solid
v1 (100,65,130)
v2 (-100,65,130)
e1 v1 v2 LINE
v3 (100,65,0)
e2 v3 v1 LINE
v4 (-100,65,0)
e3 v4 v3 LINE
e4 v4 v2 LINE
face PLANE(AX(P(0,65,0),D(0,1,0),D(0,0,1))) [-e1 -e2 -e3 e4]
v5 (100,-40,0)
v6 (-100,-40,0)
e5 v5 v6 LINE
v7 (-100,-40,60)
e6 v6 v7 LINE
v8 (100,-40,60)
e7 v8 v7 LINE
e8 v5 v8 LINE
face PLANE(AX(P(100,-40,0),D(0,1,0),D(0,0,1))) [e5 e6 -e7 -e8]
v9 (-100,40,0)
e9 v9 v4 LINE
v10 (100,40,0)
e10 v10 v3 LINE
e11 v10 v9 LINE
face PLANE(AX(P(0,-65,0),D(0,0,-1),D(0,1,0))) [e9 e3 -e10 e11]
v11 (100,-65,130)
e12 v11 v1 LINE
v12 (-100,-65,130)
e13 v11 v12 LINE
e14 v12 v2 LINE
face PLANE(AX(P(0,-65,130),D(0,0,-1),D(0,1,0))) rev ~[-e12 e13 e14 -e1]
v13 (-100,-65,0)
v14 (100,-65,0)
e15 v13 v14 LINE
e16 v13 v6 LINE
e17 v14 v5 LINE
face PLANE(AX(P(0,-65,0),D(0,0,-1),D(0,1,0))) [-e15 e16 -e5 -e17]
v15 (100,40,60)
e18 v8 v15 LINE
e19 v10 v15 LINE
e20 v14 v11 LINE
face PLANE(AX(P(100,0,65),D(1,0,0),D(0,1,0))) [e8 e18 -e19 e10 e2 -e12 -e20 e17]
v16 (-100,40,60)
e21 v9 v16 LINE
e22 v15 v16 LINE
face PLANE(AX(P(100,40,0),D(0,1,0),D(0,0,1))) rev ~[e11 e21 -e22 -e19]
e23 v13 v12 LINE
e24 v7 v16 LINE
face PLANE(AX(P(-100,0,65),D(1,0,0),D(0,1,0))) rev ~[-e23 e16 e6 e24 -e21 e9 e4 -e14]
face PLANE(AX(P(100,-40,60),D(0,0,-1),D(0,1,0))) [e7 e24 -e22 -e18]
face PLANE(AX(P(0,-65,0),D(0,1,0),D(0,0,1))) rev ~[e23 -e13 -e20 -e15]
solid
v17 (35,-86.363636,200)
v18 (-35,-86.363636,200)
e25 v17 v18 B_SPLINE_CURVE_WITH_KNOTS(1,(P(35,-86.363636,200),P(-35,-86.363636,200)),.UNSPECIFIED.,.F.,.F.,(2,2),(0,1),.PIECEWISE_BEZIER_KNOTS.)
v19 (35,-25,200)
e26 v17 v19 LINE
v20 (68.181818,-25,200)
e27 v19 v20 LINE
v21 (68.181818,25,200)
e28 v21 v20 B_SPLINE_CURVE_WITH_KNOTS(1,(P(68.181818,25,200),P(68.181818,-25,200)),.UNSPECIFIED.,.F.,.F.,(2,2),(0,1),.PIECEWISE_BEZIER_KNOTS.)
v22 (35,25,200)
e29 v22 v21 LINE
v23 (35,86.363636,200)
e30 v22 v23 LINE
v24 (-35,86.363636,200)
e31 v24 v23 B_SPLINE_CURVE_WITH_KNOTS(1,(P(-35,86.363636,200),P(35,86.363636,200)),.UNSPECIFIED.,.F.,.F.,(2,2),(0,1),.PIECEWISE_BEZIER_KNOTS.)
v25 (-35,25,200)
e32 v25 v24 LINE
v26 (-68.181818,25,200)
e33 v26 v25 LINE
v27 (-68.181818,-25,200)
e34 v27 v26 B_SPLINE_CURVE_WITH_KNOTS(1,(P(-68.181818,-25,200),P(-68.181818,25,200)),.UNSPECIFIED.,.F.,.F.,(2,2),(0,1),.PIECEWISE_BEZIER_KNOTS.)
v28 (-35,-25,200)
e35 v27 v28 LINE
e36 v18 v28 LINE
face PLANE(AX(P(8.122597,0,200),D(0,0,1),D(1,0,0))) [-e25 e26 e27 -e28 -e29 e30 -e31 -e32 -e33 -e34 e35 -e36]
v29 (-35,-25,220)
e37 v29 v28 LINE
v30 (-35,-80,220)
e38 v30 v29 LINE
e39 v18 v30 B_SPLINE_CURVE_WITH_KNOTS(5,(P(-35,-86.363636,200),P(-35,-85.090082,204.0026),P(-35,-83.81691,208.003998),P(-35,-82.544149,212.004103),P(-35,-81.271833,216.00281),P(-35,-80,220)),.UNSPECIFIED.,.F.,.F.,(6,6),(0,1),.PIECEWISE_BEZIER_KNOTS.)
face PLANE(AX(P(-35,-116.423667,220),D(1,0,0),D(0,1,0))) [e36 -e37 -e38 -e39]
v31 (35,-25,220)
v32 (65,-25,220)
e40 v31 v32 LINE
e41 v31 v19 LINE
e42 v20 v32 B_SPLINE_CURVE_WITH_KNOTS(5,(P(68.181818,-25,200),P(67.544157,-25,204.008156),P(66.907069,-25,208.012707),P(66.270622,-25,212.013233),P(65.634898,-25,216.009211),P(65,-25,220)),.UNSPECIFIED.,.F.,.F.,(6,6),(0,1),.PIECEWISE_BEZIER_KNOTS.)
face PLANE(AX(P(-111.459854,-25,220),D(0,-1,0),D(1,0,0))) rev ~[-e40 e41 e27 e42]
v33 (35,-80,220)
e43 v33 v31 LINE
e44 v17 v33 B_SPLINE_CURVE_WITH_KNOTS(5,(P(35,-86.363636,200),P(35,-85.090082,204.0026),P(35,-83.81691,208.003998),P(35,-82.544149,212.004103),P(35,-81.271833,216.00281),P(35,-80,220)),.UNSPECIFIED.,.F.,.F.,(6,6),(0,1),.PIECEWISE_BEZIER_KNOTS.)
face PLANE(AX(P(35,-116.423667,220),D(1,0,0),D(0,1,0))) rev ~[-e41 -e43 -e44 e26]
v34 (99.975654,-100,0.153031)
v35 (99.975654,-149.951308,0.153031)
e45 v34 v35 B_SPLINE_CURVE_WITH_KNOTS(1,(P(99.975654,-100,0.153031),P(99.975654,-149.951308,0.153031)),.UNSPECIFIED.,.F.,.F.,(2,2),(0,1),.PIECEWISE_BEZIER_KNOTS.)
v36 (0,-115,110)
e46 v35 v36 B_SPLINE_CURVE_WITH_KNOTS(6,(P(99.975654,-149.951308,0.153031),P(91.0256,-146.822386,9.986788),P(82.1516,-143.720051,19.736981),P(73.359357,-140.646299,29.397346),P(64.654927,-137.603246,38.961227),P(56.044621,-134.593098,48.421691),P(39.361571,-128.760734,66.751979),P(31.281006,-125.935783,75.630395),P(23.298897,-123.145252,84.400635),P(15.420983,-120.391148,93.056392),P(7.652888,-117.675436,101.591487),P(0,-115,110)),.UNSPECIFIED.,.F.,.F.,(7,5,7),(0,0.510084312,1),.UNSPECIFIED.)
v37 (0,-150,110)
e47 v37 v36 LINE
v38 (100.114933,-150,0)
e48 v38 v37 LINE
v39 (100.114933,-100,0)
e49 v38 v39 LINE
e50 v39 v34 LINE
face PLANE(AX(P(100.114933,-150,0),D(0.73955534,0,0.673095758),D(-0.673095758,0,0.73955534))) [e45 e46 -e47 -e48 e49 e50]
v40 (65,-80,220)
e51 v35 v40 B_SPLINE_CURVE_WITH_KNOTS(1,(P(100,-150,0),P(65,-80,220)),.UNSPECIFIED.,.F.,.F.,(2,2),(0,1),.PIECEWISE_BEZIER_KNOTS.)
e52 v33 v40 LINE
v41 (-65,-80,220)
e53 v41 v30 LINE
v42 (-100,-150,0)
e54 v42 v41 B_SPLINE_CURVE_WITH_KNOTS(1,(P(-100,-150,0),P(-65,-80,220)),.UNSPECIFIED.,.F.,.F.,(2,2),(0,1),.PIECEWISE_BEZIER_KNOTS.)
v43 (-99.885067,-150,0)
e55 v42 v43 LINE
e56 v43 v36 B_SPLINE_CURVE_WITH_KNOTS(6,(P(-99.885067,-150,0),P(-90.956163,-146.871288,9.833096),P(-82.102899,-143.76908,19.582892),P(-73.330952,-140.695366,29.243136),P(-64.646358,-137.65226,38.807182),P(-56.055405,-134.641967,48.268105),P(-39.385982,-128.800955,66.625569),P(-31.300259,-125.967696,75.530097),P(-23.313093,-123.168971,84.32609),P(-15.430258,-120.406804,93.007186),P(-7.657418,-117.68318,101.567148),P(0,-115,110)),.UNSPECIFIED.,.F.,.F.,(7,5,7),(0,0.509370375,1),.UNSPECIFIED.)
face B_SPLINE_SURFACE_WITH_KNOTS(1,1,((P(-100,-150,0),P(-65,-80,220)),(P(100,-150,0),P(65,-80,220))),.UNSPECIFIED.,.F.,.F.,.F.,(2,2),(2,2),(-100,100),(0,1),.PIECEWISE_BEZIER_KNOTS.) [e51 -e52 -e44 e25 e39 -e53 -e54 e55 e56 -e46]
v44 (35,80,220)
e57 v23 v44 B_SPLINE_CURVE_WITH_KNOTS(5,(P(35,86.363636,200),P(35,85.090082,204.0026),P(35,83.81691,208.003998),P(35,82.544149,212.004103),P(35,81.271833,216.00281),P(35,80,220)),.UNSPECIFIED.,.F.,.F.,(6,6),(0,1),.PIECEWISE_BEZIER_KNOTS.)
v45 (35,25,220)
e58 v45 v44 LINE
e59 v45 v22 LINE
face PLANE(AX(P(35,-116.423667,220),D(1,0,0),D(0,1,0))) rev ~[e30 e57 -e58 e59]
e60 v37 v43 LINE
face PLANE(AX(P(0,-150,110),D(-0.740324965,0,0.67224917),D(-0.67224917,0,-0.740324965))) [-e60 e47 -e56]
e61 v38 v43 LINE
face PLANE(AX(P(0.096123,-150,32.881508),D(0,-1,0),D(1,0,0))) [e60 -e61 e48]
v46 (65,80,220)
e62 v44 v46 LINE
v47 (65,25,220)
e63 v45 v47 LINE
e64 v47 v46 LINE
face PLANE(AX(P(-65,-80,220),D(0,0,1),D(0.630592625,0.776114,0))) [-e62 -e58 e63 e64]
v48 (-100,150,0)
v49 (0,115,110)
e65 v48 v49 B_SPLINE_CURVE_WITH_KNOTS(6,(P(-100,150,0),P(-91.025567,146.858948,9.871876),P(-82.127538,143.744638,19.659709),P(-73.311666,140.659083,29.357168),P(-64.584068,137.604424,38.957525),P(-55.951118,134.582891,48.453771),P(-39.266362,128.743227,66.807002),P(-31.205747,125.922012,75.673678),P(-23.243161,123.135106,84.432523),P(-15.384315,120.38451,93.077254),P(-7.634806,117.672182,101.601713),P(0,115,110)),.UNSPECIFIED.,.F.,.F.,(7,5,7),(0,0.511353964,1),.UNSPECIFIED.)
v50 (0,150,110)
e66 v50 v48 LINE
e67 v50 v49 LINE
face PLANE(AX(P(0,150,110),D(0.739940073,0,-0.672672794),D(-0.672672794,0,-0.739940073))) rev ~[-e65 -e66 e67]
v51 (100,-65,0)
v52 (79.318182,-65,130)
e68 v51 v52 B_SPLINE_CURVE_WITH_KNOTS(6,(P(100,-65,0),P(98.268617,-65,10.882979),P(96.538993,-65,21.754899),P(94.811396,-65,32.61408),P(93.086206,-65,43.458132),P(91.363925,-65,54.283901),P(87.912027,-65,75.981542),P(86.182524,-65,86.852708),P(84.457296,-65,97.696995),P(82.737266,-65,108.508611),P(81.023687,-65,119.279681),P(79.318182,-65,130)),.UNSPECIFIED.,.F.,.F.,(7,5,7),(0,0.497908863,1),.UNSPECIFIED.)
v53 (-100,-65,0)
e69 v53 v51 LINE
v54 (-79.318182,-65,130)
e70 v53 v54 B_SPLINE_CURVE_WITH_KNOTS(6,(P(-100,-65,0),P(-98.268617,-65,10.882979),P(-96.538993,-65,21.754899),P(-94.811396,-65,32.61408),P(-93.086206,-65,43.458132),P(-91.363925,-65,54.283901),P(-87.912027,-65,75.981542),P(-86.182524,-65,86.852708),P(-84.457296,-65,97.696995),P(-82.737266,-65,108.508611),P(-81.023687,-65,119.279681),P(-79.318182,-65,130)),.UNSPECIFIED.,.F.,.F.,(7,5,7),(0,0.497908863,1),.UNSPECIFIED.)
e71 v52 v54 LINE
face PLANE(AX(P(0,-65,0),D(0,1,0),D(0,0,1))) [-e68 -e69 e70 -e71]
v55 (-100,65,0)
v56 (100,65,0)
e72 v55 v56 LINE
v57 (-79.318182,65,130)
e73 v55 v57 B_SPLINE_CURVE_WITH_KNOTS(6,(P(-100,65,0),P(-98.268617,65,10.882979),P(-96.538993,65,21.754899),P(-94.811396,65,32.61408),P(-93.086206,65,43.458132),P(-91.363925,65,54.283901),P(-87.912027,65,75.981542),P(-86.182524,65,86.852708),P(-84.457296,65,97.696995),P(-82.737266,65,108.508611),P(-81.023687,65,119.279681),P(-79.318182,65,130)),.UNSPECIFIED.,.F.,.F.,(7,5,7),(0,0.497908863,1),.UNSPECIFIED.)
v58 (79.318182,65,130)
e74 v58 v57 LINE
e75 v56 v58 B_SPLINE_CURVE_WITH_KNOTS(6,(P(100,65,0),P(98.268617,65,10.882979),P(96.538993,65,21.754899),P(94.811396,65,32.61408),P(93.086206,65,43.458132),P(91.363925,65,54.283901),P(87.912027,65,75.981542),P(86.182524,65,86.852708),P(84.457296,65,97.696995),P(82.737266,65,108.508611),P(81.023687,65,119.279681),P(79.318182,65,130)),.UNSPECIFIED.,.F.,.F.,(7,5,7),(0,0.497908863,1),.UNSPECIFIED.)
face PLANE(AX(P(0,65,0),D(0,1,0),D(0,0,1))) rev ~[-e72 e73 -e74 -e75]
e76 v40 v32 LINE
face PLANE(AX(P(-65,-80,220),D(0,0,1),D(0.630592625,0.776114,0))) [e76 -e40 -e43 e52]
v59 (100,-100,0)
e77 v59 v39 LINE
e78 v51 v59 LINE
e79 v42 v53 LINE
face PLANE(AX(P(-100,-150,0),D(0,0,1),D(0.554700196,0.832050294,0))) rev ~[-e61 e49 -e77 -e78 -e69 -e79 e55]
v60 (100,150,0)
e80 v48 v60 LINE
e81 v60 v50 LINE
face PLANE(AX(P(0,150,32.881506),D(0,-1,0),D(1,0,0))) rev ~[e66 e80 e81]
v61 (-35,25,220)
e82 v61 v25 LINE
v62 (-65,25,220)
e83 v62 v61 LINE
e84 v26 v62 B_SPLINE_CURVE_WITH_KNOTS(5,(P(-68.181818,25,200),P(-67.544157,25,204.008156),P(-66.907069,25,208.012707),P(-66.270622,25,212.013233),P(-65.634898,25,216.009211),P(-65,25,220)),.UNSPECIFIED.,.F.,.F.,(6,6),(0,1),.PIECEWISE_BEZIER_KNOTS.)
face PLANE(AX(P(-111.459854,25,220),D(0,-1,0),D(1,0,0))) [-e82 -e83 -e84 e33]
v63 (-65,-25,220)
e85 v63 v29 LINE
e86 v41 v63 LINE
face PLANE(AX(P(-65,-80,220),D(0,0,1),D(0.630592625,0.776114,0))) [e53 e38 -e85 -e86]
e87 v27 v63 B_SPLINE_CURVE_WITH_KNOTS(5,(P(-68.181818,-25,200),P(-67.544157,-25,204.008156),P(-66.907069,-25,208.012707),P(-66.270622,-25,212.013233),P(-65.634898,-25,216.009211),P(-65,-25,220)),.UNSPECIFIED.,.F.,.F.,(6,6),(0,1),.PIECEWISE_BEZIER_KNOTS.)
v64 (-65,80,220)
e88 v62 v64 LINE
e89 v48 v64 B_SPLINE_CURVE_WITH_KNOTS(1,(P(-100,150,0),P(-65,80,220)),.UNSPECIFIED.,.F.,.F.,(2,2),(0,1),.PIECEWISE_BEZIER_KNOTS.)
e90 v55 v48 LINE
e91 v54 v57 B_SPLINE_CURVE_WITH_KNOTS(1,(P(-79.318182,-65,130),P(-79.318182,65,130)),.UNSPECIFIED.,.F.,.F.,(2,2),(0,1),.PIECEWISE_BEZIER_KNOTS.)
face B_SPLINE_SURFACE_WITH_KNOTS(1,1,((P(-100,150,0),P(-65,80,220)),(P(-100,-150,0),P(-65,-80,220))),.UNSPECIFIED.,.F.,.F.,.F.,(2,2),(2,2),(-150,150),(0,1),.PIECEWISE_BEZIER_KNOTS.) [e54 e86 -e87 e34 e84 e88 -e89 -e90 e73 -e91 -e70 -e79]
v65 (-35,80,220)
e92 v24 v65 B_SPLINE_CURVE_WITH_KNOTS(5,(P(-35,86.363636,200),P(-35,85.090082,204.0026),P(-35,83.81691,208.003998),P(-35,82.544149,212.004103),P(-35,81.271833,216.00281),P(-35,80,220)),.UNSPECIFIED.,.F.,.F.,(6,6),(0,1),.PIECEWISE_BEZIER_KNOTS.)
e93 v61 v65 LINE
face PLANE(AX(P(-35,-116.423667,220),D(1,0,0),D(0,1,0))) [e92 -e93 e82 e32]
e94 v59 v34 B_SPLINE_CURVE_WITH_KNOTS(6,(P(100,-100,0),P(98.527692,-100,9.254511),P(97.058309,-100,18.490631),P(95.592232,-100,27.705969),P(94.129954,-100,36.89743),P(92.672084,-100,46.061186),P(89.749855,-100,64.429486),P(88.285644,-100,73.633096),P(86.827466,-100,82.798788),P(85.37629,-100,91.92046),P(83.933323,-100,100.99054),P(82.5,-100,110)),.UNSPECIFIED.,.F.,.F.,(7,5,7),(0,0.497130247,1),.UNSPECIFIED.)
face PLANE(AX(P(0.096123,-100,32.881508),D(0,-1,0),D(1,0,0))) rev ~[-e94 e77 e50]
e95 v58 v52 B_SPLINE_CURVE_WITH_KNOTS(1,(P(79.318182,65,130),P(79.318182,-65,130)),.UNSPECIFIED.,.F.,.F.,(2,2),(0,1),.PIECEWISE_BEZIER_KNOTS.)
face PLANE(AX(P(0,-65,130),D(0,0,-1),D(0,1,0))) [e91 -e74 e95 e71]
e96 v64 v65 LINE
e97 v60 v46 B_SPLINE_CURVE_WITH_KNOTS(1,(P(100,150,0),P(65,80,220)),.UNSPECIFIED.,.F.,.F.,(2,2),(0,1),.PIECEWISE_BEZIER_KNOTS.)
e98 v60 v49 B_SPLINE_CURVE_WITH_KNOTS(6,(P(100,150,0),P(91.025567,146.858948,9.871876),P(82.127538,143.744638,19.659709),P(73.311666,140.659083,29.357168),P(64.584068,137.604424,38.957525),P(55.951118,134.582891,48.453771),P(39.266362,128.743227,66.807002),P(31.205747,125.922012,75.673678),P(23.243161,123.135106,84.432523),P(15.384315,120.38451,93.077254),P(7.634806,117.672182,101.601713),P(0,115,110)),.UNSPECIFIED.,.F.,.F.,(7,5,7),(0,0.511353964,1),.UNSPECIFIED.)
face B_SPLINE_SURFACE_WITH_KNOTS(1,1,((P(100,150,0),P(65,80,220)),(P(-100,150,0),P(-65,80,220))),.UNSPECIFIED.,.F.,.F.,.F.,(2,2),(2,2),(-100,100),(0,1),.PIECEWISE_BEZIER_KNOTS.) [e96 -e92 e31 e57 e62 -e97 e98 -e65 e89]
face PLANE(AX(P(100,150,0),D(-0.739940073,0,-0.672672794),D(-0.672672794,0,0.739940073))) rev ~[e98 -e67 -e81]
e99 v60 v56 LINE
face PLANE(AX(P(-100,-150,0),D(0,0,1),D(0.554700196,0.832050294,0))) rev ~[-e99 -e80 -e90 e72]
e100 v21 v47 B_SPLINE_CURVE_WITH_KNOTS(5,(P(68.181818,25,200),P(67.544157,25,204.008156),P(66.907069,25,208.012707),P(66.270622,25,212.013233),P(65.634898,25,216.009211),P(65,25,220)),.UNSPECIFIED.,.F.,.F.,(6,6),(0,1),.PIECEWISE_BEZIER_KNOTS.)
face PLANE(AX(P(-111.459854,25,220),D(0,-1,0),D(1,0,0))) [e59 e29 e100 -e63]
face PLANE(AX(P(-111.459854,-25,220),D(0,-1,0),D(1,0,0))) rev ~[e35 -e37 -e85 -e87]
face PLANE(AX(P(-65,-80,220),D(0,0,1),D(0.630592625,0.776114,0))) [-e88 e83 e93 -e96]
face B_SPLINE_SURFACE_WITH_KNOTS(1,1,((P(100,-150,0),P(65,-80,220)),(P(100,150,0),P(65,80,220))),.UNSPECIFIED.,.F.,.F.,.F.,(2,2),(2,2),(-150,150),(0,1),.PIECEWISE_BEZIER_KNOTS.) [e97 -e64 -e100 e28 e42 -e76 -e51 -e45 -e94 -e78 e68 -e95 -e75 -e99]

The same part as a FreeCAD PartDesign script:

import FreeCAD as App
import Part
import Sketcher

V = App.Vector
Q = App.Units.Quantity


def add_polygon(sketch, points):
    """Adds a closed chain of lines whose ends are joined by coincident constraints."""
    first, n = sketch.GeometryCount, len(points)
    for a, b in zip(points, points[1:] + points[:1]):
        sketch.addGeometry(Part.LineSegment(App.Vector(*a, 0), App.Vector(*b, 0)), False)
    for i in range(n):
        sketch.addConstraint(Sketcher.Constraint("Coincident", first + i, 2, first + (i + 1) % n, 1))

doc = App.newDocument("Part")
body = doc.addObject("PartDesign::Body", "Body")

# Sketch on YZ plane
sketch1 = doc.addObject("Sketcher::SketchObject", "Sketch")
body.addObject(sketch1)
sketch1.AttachmentSupport = (doc.YZ_Plane, [""])
sketch1.MapMode = "FlatFace"
add_polygon(sketch1, [(-65, 130), (-65, 0), (65, 0), (65, 130)])  # lines 0-3
sketch1.addConstraint(Sketcher.Constraint("Vertical", 0))
sketch1.addConstraint(Sketcher.Constraint("Horizontal", 1))
sketch1.addConstraint(Sketcher.Constraint("Vertical", 2))
sketch1.addConstraint(Sketcher.Constraint("Horizontal", 3))
sketch1.addConstraint(Sketcher.Constraint("Symmetric", 0, 2, 1, 2, -1, 1))
sketch1.addConstraint(Sketcher.Constraint("Equal", 3, 0))
sketch1.addConstraint(Sketcher.Constraint("DistanceX", 1, 1, 1, 2, Q("130 mm")))
pad1 = doc.addObject("PartDesign::Pad", "Pad")
body.addObject(pad1)
pad1.Profile = sketch1
pad1.Length = 200
pad1.Midplane = True
body2 = doc.addObject("PartDesign::Body", "Body001")

# Sketch on XZ plane
sketch2 = doc.addObject("Sketcher::SketchObject", "Sketch001")
body2.addObject(sketch2)
sketch2.AttachmentSupport = (doc.getObject("XZ_Plane001"), [""])
sketch2.MapMode = "FlatFace"
sketch2.AttachmentOffset = App.Placement(V(0, 0, -150), App.Rotation())
add_polygon(sketch2, [(-100, 0), (100, 0), (0, 110)])  # lines 0-2
sketch2.addConstraint(Sketcher.Constraint("Horizontal", 0))
sketch2.addConstraint(Sketcher.Constraint("Symmetric", 0, 2, 2, 2, -1, 1))
sketch2.addConstraint(Sketcher.Constraint("PointOnObject", 1, 2, -2))
sketch2.addConstraint(Sketcher.Constraint("DistanceX", 0, 1, 0, 2, Q("200 mm")))
sketch2.addConstraint(Sketcher.Constraint("DistanceY", -1, 1, 1, 2, Q("110 mm")))
pad2 = doc.addObject("PartDesign::Pad", "Pad001")
body2.addObject(pad2)
pad2.Profile = sketch2
pad2.Length = 50
body3 = doc.addObject("PartDesign::Body", "Body002")

# Sketch on XZ plane
sketch3 = doc.addObject("Sketcher::SketchObject", "Sketch002")
body3.addObject(sketch3)
sketch3.AttachmentSupport = (doc.getObject("XZ_Plane002"), [""])
sketch3.MapMode = "FlatFace"
sketch3.AttachmentOffset = App.Placement(V(0, 0, 150), App.Rotation())
add_polygon(sketch3, [(-99.885067, 0), (100.114933, 0), (0, 110)])  # lines 0-2
sketch3.addConstraint(Sketcher.Constraint("Horizontal", 0))
sketch3.addConstraint(Sketcher.Constraint("PointOnObject", 0, 2, -1))
sketch3.addConstraint(Sketcher.Constraint("PointOnObject", 1, 2, -2))
sketch3.addConstraint(Sketcher.Constraint("DistanceX", 0, 1, 0, 2, Q("200 mm")))
sketch3.addConstraint(Sketcher.Constraint("DistanceY", -1, 1, 1, 2, Q("110 mm")))
sketch3.addConstraint(Sketcher.Constraint("Distance", 2, Q("148.5834 mm")))
pad3 = doc.addObject("PartDesign::Pad", "Pad002")
body3.addObject(pad3)
pad3.Profile = sketch3
pad3.Length = 50
pad3.Reversed = True
body4 = doc.addObject("PartDesign::Body", "Body003")

# Sketch on XY plane
sketch4 = doc.addObject("Sketcher::SketchObject", "Sketch003")
body4.addObject(sketch4)
sketch4.AttachmentSupport = (doc.getObject("XY_Plane003"), [""])
sketch4.MapMode = "FlatFace"
add_polygon(sketch4, [(-100, 150), (-100, -150), (100, -150), (100, 150)])  # lines 0-3
sketch4.addConstraint(Sketcher.Constraint("Vertical", 0))
sketch4.addConstraint(Sketcher.Constraint("Horizontal", 1))
sketch4.addConstraint(Sketcher.Constraint("Vertical", 2))
sketch4.addConstraint(Sketcher.Constraint("Horizontal", 3))
sketch4.addConstraint(Sketcher.Constraint("Symmetric", 0, 2, 2, 2, -1, 1))
sketch4.addConstraint(Sketcher.Constraint("DistanceX", 1, 1, 1, 2, Q("200 mm")))
sketch4.addConstraint(Sketcher.Constraint("DistanceY", 0, 2, 0, 1, Q("300 mm")))

# Sketch on XY plane
sketch5 = doc.addObject("Sketcher::SketchObject", "Sketch004")
body4.addObject(sketch5)
sketch5.AttachmentSupport = (doc.getObject("XY_Plane003"), [""])
sketch5.MapMode = "FlatFace"
sketch5.AttachmentOffset = App.Placement(V(0, 0, 220), App.Rotation())
add_polygon(sketch5, [(-65, 80), (-65, -80), (65, -80), (65, 80)])  # lines 0-3
sketch5.addConstraint(Sketcher.Constraint("Vertical", 0))
sketch5.addConstraint(Sketcher.Constraint("Horizontal", 1))
sketch5.addConstraint(Sketcher.Constraint("Vertical", 2))
sketch5.addConstraint(Sketcher.Constraint("Horizontal", 3))
sketch5.addConstraint(Sketcher.Constraint("Symmetric", 0, 2, 2, 2, -1, 1))
sketch5.addConstraint(Sketcher.Constraint("DistanceX", 1, 1, 1, 2, Q("130 mm")))
sketch5.addConstraint(Sketcher.Constraint("DistanceY", 0, 2, 0, 1, Q("160 mm")))

additiveloft = doc.addObject("PartDesign::AdditiveLoft", "AdditiveLoft")
body4.addObject(additiveloft)
additiveloft.Profile = sketch4
additiveloft.Sections = [sketch5]

# Sketch on XY plane
sketch6 = doc.addObject("Sketcher::SketchObject", "Sketch005")
body4.addObject(sketch6)
sketch6.AttachmentSupport = (doc.getObject("XY_Plane003"), [""])
sketch6.MapMode = "FlatFace"
sketch6.AttachmentOffset = App.Placement(V(0, 0, 220), App.Rotation())
add_polygon(sketch6, [(-35, 127.253777), (-35, -116.423667), (35, -116.423667), (35, 127.253777)])  # lines 0-3
sketch6.addConstraint(Sketcher.Constraint("Vertical", 0))
sketch6.addConstraint(Sketcher.Constraint("Horizontal", 1))
sketch6.addConstraint(Sketcher.Constraint("Vertical", 2))
sketch6.addConstraint(Sketcher.Constraint("Horizontal", 3))
sketch6.addConstraint(Sketcher.Constraint("DistanceX", 1, 1, 1, 2, Q("70 mm")))
sketch6.addConstraint(Sketcher.Constraint("DistanceX", 0, 2, -1, 1, Q("35 mm")))
sketch6.addConstraint(Sketcher.Constraint("DistanceY", 0, 2, 0, 1, Q("243.677445 mm")))
sketch6.addConstraint(Sketcher.Constraint("DistanceY", 0, 2, -1, 1, Q("116.423667 mm")))
pocket1 = doc.addObject("PartDesign::Pocket", "Pocket")
body4.addObject(pocket1)
pocket1.Profile = sketch6
pocket1.Length = 20

# Sketch on XY plane
sketch7 = doc.addObject("Sketcher::SketchObject", "Sketch006")
body4.addObject(sketch7)
sketch7.AttachmentSupport = (doc.getObject("XY_Plane003"), [""])
sketch7.MapMode = "FlatFace"
sketch7.AttachmentOffset = App.Placement(V(0, 0, 220), App.Rotation())
add_polygon(sketch7, [(-111.459854, 25), (-111.459854, -25), (127.705048, -25), (127.705048, 25)])  # lines 0-3
sketch7.addConstraint(Sketcher.Constraint("Vertical", 0))
sketch7.addConstraint(Sketcher.Constraint("Horizontal", 1))
sketch7.addConstraint(Sketcher.Constraint("Vertical", 2))
sketch7.addConstraint(Sketcher.Constraint("Horizontal", 3))
sketch7.addConstraint(Sketcher.Constraint("DistanceY", 0, 2, 0, 1, Q("50 mm")))
sketch7.addConstraint(Sketcher.Constraint("DistanceY", 0, 2, -1, 1, Q("25 mm")))
sketch7.addConstraint(Sketcher.Constraint("DistanceX", 1, 1, 1, 2, Q("239.164902 mm")))
sketch7.addConstraint(Sketcher.Constraint("DistanceX", -1, 1, 1, 2, Q("127.705048 mm")))
pocket2 = doc.addObject("PartDesign::Pocket", "Pocket001")
body4.addObject(pocket2)
pocket2.Profile = sketch7
pocket2.Length = 20
doc.recompute()

boolean = doc.addObject("PartDesign::Boolean", "Boolean")
body4.addObject(boolean)
boolean.Type = "Fuse"
boolean.addObjects([body3])
doc.recompute()

boolean2 = doc.addObject("PartDesign::Boolean", "Boolean001")
body4.addObject(boolean2)
boolean2.Type = "Fuse"
boolean2.addObjects([body2])
doc.recompute()

boolean3 = doc.addObject("PartDesign::Boolean", "Boolean002")
body4.addObject(boolean3)
boolean3.Type = "Cut"
boolean3.addObjects([body])
body5 = doc.addObject("PartDesign::Body", "Body004")

# Sketch on YZ plane
sketch8 = doc.addObject("Sketcher::SketchObject", "Sketch007")
body5.addObject(sketch8)
sketch8.AttachmentSupport = (doc.getObject("YZ_Plane004"), [""])
sketch8.MapMode = "FlatFace"
add_polygon(sketch8, [(-65, 130), (-65, 0), (65, 0), (65, 130)])  # lines 0-3
sketch8.addConstraint(Sketcher.Constraint("Vertical", 0))
sketch8.addConstraint(Sketcher.Constraint("Horizontal", 1))
sketch8.addConstraint(Sketcher.Constraint("Vertical", 2))
sketch8.addConstraint(Sketcher.Constraint("Horizontal", 3))
sketch8.addConstraint(Sketcher.Constraint("Symmetric", 0, 2, 1, 2, -1, 1))
sketch8.addConstraint(Sketcher.Constraint("Equal", 3, 0))
sketch8.addConstraint(Sketcher.Constraint("DistanceX", 1, 1, 1, 2, Q("130 mm")))
pad4 = doc.addObject("PartDesign::Pad", "Pad003")
body5.addObject(pad4)
pad4.Profile = sketch8
pad4.Length = 200
pad4.Midplane = True

# Sketch on YZ plane
sketch9 = doc.addObject("Sketcher::SketchObject", "Sketch008")
body5.addObject(sketch9)
sketch9.AttachmentSupport = (doc.getObject("YZ_Plane004"), [""])
sketch9.MapMode = "FlatFace"
sketch9.AttachmentOffset = App.Placement(V(0, 0, 100), App.Rotation())
add_polygon(sketch9, [(-40, 60), (-40, 0), (40, 0), (40, 60)])  # lines 0-3
sketch9.addConstraint(Sketcher.Constraint("Vertical", 0))
sketch9.addConstraint(Sketcher.Constraint("Horizontal", 1))
sketch9.addConstraint(Sketcher.Constraint("Vertical", 2))
sketch9.addConstraint(Sketcher.Constraint("Horizontal", 3))
sketch9.addConstraint(Sketcher.Constraint("Symmetric", 0, 2, 1, 2, -1, 1))
sketch9.addConstraint(Sketcher.Constraint("DistanceX", 1, 1, 1, 2, Q("80 mm")))
sketch9.addConstraint(Sketcher.Constraint("DistanceY", 0, 2, 0, 1, Q("60 mm")))
pocket3 = doc.addObject("PartDesign::Pocket", "Pocket002")
body5.addObject(pocket3)
pocket3.Profile = sketch9
pocket3.Type = "ThroughAll"

doc.recompute()
